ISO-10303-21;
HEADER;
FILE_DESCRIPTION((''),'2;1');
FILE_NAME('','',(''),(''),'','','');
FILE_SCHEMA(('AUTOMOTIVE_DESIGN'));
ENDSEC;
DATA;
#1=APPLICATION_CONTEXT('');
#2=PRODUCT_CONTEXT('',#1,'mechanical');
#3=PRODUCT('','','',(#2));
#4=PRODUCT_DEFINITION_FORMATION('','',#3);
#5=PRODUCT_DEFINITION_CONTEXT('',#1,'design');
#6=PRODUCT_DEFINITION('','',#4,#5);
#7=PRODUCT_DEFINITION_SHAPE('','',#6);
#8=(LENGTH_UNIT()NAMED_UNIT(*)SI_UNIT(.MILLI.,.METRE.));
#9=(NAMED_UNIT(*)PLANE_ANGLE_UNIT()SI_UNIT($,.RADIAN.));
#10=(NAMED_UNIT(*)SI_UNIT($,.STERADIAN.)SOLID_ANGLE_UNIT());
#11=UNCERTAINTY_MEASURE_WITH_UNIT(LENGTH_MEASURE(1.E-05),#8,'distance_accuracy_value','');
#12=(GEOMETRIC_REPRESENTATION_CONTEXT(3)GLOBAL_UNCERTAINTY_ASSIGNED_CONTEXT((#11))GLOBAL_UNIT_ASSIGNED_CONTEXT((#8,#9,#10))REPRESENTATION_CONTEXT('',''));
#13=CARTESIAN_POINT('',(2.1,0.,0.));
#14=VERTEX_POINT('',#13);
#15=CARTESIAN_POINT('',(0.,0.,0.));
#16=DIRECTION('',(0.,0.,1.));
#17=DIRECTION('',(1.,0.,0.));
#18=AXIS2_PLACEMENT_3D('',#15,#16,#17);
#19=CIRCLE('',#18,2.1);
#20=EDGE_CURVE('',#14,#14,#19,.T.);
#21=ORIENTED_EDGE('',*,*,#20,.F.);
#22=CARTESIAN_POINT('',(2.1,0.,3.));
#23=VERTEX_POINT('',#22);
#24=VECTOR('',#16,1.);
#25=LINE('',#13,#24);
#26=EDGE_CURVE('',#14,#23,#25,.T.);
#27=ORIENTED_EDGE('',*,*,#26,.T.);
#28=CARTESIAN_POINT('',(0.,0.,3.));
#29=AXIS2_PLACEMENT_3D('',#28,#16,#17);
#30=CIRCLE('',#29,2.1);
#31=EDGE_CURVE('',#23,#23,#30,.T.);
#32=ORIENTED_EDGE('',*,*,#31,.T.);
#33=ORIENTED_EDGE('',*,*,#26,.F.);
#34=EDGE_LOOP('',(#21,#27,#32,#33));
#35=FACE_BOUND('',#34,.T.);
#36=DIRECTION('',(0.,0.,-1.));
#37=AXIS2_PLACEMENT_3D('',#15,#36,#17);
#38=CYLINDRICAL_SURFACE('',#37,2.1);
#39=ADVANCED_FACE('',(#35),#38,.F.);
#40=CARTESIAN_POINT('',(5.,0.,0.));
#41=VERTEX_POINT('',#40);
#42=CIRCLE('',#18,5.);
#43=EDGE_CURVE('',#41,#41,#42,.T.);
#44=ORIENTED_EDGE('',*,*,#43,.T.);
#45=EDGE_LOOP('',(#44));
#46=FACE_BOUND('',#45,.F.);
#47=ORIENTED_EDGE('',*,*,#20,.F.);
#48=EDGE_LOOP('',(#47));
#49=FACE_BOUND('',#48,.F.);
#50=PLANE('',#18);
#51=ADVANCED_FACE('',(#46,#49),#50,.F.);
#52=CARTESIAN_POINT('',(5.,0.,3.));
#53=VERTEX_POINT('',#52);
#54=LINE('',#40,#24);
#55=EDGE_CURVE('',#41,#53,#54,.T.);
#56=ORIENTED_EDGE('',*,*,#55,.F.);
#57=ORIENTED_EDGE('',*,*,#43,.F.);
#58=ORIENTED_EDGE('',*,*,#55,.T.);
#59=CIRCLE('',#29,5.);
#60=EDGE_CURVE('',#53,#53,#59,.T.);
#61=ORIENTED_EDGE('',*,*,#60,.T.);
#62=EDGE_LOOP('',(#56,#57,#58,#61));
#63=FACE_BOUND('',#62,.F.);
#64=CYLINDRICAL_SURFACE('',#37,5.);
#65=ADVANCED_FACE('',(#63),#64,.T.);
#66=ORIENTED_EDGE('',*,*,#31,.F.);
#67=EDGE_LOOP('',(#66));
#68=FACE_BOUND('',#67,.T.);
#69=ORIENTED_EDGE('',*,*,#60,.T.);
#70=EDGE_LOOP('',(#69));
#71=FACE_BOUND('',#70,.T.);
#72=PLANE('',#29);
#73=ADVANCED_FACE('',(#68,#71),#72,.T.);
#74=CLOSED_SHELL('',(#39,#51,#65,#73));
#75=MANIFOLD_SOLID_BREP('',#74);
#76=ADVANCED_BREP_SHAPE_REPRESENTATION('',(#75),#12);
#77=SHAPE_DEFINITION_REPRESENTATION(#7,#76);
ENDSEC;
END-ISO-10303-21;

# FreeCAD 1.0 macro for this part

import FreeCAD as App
import Part
import Sketcher
Q = App.Units.Quantity

doc = App.newDocument("Part")
body = doc.addObject("PartDesign::Body", "Body")

# Sketch on XY plane
sketch1 = doc.addObject("Sketcher::SketchObject", "Sketch")
body.addObject(sketch1)
sketch1.AttachmentSupport = (doc.XY_Plane, [""])
sketch1.MapMode = "FlatFace"
sketch1.addGeometry([
    Part.Circle(App.Vector(0, 0, 0), App.Vector(0, 0, 1), 5),
    Part.Circle(App.Vector(0, 0, 0), App.Vector(0, 0, 1), 2.1),
], False)
sketch1.addConstraint([
    Sketcher.Constraint("Coincident", 0, 3, -1, 1),
    Sketcher.Constraint("Coincident", 1, 3, -1, 1),
    Sketcher.Constraint("Diameter", 0, Q("10 mm")),
    Sketcher.Constraint("Diameter", 1, Q("4.2 mm")),
])
pad1 = doc.addObject("PartDesign::Pad", "Pad")
body.addObject(pad1)
pad1.Profile = sketch1
pad1.Length = 3

doc.recompute()
